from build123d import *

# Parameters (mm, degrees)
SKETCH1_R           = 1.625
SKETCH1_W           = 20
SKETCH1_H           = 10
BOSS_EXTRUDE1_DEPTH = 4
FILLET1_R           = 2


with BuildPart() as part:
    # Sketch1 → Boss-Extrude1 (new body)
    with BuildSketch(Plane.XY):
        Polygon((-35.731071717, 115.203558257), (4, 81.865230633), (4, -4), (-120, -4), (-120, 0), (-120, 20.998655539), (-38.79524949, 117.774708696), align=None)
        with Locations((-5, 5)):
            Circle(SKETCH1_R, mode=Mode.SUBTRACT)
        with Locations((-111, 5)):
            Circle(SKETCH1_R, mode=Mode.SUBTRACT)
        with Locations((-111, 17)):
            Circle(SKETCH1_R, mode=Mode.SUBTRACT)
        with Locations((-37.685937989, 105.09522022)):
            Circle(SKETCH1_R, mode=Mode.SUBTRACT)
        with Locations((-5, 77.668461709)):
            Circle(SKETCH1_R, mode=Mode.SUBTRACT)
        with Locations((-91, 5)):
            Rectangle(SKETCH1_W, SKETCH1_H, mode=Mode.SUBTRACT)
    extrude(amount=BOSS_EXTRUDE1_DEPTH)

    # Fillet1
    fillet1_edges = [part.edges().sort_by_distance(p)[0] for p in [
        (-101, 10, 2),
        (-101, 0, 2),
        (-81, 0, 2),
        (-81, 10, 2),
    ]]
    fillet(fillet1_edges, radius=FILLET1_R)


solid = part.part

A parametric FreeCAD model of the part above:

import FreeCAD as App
import Part
import Sketcher

V = App.Vector
Q = App.Units.Quantity


def edges_at(feature, points):
    """Names of the edges that pass closest to the given points."""
    edges = feature.Shape.Edges
    near = lambda p: min(range(len(edges)), key=lambda i: edges[i].distToShape(Part.Vertex(*p))[0])
    return sorted({f"Edge{near(p) + 1}" for p in points})

doc = App.newDocument("Part")
body = doc.addObject("PartDesign::Body", "Body")

sketch1 = body.newObject("Sketcher::SketchObject", "Sketch")
sketch1.AttachmentSupport = (doc.getObject("XY_Plane"), [""])
sketch1.MapMode = "FlatFace"
sketch1.addGeometry(Part.LineSegment(V(4, 81.9, 0), V(-35.7, 115.2, 0)), False)
sketch1.addGeometry(Part.LineSegment(V(-35.7, 115.2, 0), V(-38.8, 117.8, 0)), False)
sketch1.addGeometry(Part.LineSegment(V(-38.8, 117.8, 0), V(-120, 21, 0)), False)
sketch1.addGeometry(Part.LineSegment(V(-120, 21, 0), V(-120, -4, 0)), False)
sketch1.addGeometry(Part.LineSegment(V(-120, -4, 0), V(4, -4, 0)), False)
sketch1.addGeometry(Part.LineSegment(V(4, -4, 0), V(4, 81.9, 0)), False)
sketch1.addGeometry(Part.Circle(V(-5, 5, 0), V(0, 0, 1), 1.6), False)
sketch1.addGeometry(Part.LineSegment(V(-101, 0, 0), V(-101, 10, 0)), False)
sketch1.addGeometry(Part.LineSegment(V(-101, 10, 0), V(-81, 10, 0)), False)
sketch1.addGeometry(Part.LineSegment(V(-81, 10, 0), V(-81, 0, 0)), False)
sketch1.addGeometry(Part.LineSegment(V(-81, 0, 0), V(-101, 0, 0)), False)
sketch1.addGeometry(Part.Circle(V(-111, 5, 0), V(0, 0, 1), 1.6), False)
sketch1.addGeometry(Part.Circle(V(-111, 17, 0), V(0, 0, 1), 1.6), False)
sketch1.addGeometry(Part.Circle(V(-5, 77.7, 0), V(0, 0, 1), 1.6), False)
sketch1.addGeometry(Part.Circle(V(-37.7, 105.1, 0), V(0, 0, 1), 1.6), False)
sketch1.addConstraint(Sketcher.Constraint("Coincident", 0, 2, 1, 1))
sketch1.addConstraint(Sketcher.Constraint("Coincident", 1, 2, 2, 1))
sketch1.addConstraint(Sketcher.Constraint("Coincident", 2, 2, 3, 1))
sketch1.addConstraint(Sketcher.Constraint("Coincident", 3, 2, 4, 1))
sketch1.addConstraint(Sketcher.Constraint("Coincident", 4, 2, 5, 1))
sketch1.addConstraint(Sketcher.Constraint("Coincident", 5, 2, 0, 1))
sketch1.addConstraint(Sketcher.Constraint("Coincident", 7, 2, 8, 1))
sketch1.addConstraint(Sketcher.Constraint("Coincident", 8, 2, 9, 1))
sketch1.addConstraint(Sketcher.Constraint("Coincident", 9, 2, 10, 1))
sketch1.addConstraint(Sketcher.Constraint("Coincident", 10, 2, 7, 1))
sketch1.addConstraint(Sketcher.Constraint("Vertical", 3))
sketch1.addConstraint(Sketcher.Constraint("Horizontal", 4))
sketch1.addConstraint(Sketcher.Constraint("Vertical", 5))
sketch1.addConstraint(Sketcher.Constraint("Vertical", 7))
sketch1.addConstraint(Sketcher.Constraint("Horizontal", 8))
sketch1.addConstraint(Sketcher.Constraint("Vertical", 9))
sketch1.addConstraint(Sketcher.Constraint("Horizontal", 10))
sketch1.addConstraint(Sketcher.Constraint("Equal", 6, 11))
sketch1.addConstraint(Sketcher.Constraint("Equal", 11, 12))
sketch1.addConstraint(Sketcher.Constraint("Equal", 12, 13))
sketch1.addConstraint(Sketcher.Constraint("Equal", 13, 14))
sketch1.addConstraint(Sketcher.Constraint("PointOnObject", 9, 2, -1))
sketch1.addConstraint(Sketcher.Constraint("Parallel", 0, 1))
sketch1.addConstraint(Sketcher.Constraint("Perpendicular", 1, 2))
sketch1.addConstraint(Sketcher.Constraint("Horizontal", 6, 3, 11, 3))
sketch1.addConstraint(Sketcher.Constraint("Vertical", 11, 3, 12, 3))
sketch1.addConstraint(Sketcher.Constraint("Vertical", 6, 3, 13, 3))
sketch1.addConstraint(Sketcher.Constraint("Diameter", 6, 3.25))
sketch1.addConstraint(Sketcher.Constraint("DistanceX", 4, 1, 4, 2, 124.0))
sketch1.addConstraint(Sketcher.Constraint("DistanceX", 8, 1, 8, 2, 20.0))
sketch1.addConstraint(Sketcher.Constraint("DistanceY", 7, 1, 7, 2, 10.0))
sketch1.addConstraint(Sketcher.Constraint("Angle", 0, Q("140 deg")))
sketch1.addConstraint(Sketcher.Constraint("Distance", 1, 4.0))
sketch1.addConstraint(Sketcher.Constraint("DistanceX", 6, 3, -1, 1, 5.0))
sketch1.addConstraint(Sketcher.Constraint("DistanceY", -1, 1, 6, 3, 5.0))
sketch1.addConstraint(Sketcher.Constraint("DistanceX", 11, 3, -1, 1, 111.0))
sketch1.addConstraint(Sketcher.Constraint("DistanceY", -1, 1, 12, 3, 17.0))
sketch1.addConstraint(Sketcher.Constraint("DistanceX", 2, 2, -1, 1, 120.0))
sketch1.addConstraint(Sketcher.Constraint("DistanceY", 3, 2, -1, 1, 4.0))
sketch1.addConstraint(Sketcher.Constraint("DistanceX", 7, 2, -1, 1, 101.0))
sketch1.addConstraint(Sketcher.Constraint("DistanceY", 5, 1, 5, 2, 85.865231))
sketch1.addConstraint(Sketcher.Constraint("Distance", 0, 51.865231))
sketch1.addConstraint(Sketcher.Constraint("DistanceY", -1, 1, 13, 3, 77.668462))
sketch1.addConstraint(Sketcher.Constraint("DistanceY", -1, 1, 14, 3, 105.09522))
sketch1.addConstraint(Sketcher.Constraint("DistanceX", 1, 2, 14, 3, 1.109312))
pad1 = body.newObject("PartDesign::Pad", "Pad")
pad1.Profile = sketch1
pad1.Length = 4
doc.recompute()

fillet = body.newObject("PartDesign::Fillet", "Fillet")
fillet.Base = (pad1, edges_at(pad1, [
    (-101, 10, 2),
    (-101, 0, 2),
    (-81, 0, 2),
    (-81, 10, 2),
]))
fillet.Radius = 2

doc.recompute()
